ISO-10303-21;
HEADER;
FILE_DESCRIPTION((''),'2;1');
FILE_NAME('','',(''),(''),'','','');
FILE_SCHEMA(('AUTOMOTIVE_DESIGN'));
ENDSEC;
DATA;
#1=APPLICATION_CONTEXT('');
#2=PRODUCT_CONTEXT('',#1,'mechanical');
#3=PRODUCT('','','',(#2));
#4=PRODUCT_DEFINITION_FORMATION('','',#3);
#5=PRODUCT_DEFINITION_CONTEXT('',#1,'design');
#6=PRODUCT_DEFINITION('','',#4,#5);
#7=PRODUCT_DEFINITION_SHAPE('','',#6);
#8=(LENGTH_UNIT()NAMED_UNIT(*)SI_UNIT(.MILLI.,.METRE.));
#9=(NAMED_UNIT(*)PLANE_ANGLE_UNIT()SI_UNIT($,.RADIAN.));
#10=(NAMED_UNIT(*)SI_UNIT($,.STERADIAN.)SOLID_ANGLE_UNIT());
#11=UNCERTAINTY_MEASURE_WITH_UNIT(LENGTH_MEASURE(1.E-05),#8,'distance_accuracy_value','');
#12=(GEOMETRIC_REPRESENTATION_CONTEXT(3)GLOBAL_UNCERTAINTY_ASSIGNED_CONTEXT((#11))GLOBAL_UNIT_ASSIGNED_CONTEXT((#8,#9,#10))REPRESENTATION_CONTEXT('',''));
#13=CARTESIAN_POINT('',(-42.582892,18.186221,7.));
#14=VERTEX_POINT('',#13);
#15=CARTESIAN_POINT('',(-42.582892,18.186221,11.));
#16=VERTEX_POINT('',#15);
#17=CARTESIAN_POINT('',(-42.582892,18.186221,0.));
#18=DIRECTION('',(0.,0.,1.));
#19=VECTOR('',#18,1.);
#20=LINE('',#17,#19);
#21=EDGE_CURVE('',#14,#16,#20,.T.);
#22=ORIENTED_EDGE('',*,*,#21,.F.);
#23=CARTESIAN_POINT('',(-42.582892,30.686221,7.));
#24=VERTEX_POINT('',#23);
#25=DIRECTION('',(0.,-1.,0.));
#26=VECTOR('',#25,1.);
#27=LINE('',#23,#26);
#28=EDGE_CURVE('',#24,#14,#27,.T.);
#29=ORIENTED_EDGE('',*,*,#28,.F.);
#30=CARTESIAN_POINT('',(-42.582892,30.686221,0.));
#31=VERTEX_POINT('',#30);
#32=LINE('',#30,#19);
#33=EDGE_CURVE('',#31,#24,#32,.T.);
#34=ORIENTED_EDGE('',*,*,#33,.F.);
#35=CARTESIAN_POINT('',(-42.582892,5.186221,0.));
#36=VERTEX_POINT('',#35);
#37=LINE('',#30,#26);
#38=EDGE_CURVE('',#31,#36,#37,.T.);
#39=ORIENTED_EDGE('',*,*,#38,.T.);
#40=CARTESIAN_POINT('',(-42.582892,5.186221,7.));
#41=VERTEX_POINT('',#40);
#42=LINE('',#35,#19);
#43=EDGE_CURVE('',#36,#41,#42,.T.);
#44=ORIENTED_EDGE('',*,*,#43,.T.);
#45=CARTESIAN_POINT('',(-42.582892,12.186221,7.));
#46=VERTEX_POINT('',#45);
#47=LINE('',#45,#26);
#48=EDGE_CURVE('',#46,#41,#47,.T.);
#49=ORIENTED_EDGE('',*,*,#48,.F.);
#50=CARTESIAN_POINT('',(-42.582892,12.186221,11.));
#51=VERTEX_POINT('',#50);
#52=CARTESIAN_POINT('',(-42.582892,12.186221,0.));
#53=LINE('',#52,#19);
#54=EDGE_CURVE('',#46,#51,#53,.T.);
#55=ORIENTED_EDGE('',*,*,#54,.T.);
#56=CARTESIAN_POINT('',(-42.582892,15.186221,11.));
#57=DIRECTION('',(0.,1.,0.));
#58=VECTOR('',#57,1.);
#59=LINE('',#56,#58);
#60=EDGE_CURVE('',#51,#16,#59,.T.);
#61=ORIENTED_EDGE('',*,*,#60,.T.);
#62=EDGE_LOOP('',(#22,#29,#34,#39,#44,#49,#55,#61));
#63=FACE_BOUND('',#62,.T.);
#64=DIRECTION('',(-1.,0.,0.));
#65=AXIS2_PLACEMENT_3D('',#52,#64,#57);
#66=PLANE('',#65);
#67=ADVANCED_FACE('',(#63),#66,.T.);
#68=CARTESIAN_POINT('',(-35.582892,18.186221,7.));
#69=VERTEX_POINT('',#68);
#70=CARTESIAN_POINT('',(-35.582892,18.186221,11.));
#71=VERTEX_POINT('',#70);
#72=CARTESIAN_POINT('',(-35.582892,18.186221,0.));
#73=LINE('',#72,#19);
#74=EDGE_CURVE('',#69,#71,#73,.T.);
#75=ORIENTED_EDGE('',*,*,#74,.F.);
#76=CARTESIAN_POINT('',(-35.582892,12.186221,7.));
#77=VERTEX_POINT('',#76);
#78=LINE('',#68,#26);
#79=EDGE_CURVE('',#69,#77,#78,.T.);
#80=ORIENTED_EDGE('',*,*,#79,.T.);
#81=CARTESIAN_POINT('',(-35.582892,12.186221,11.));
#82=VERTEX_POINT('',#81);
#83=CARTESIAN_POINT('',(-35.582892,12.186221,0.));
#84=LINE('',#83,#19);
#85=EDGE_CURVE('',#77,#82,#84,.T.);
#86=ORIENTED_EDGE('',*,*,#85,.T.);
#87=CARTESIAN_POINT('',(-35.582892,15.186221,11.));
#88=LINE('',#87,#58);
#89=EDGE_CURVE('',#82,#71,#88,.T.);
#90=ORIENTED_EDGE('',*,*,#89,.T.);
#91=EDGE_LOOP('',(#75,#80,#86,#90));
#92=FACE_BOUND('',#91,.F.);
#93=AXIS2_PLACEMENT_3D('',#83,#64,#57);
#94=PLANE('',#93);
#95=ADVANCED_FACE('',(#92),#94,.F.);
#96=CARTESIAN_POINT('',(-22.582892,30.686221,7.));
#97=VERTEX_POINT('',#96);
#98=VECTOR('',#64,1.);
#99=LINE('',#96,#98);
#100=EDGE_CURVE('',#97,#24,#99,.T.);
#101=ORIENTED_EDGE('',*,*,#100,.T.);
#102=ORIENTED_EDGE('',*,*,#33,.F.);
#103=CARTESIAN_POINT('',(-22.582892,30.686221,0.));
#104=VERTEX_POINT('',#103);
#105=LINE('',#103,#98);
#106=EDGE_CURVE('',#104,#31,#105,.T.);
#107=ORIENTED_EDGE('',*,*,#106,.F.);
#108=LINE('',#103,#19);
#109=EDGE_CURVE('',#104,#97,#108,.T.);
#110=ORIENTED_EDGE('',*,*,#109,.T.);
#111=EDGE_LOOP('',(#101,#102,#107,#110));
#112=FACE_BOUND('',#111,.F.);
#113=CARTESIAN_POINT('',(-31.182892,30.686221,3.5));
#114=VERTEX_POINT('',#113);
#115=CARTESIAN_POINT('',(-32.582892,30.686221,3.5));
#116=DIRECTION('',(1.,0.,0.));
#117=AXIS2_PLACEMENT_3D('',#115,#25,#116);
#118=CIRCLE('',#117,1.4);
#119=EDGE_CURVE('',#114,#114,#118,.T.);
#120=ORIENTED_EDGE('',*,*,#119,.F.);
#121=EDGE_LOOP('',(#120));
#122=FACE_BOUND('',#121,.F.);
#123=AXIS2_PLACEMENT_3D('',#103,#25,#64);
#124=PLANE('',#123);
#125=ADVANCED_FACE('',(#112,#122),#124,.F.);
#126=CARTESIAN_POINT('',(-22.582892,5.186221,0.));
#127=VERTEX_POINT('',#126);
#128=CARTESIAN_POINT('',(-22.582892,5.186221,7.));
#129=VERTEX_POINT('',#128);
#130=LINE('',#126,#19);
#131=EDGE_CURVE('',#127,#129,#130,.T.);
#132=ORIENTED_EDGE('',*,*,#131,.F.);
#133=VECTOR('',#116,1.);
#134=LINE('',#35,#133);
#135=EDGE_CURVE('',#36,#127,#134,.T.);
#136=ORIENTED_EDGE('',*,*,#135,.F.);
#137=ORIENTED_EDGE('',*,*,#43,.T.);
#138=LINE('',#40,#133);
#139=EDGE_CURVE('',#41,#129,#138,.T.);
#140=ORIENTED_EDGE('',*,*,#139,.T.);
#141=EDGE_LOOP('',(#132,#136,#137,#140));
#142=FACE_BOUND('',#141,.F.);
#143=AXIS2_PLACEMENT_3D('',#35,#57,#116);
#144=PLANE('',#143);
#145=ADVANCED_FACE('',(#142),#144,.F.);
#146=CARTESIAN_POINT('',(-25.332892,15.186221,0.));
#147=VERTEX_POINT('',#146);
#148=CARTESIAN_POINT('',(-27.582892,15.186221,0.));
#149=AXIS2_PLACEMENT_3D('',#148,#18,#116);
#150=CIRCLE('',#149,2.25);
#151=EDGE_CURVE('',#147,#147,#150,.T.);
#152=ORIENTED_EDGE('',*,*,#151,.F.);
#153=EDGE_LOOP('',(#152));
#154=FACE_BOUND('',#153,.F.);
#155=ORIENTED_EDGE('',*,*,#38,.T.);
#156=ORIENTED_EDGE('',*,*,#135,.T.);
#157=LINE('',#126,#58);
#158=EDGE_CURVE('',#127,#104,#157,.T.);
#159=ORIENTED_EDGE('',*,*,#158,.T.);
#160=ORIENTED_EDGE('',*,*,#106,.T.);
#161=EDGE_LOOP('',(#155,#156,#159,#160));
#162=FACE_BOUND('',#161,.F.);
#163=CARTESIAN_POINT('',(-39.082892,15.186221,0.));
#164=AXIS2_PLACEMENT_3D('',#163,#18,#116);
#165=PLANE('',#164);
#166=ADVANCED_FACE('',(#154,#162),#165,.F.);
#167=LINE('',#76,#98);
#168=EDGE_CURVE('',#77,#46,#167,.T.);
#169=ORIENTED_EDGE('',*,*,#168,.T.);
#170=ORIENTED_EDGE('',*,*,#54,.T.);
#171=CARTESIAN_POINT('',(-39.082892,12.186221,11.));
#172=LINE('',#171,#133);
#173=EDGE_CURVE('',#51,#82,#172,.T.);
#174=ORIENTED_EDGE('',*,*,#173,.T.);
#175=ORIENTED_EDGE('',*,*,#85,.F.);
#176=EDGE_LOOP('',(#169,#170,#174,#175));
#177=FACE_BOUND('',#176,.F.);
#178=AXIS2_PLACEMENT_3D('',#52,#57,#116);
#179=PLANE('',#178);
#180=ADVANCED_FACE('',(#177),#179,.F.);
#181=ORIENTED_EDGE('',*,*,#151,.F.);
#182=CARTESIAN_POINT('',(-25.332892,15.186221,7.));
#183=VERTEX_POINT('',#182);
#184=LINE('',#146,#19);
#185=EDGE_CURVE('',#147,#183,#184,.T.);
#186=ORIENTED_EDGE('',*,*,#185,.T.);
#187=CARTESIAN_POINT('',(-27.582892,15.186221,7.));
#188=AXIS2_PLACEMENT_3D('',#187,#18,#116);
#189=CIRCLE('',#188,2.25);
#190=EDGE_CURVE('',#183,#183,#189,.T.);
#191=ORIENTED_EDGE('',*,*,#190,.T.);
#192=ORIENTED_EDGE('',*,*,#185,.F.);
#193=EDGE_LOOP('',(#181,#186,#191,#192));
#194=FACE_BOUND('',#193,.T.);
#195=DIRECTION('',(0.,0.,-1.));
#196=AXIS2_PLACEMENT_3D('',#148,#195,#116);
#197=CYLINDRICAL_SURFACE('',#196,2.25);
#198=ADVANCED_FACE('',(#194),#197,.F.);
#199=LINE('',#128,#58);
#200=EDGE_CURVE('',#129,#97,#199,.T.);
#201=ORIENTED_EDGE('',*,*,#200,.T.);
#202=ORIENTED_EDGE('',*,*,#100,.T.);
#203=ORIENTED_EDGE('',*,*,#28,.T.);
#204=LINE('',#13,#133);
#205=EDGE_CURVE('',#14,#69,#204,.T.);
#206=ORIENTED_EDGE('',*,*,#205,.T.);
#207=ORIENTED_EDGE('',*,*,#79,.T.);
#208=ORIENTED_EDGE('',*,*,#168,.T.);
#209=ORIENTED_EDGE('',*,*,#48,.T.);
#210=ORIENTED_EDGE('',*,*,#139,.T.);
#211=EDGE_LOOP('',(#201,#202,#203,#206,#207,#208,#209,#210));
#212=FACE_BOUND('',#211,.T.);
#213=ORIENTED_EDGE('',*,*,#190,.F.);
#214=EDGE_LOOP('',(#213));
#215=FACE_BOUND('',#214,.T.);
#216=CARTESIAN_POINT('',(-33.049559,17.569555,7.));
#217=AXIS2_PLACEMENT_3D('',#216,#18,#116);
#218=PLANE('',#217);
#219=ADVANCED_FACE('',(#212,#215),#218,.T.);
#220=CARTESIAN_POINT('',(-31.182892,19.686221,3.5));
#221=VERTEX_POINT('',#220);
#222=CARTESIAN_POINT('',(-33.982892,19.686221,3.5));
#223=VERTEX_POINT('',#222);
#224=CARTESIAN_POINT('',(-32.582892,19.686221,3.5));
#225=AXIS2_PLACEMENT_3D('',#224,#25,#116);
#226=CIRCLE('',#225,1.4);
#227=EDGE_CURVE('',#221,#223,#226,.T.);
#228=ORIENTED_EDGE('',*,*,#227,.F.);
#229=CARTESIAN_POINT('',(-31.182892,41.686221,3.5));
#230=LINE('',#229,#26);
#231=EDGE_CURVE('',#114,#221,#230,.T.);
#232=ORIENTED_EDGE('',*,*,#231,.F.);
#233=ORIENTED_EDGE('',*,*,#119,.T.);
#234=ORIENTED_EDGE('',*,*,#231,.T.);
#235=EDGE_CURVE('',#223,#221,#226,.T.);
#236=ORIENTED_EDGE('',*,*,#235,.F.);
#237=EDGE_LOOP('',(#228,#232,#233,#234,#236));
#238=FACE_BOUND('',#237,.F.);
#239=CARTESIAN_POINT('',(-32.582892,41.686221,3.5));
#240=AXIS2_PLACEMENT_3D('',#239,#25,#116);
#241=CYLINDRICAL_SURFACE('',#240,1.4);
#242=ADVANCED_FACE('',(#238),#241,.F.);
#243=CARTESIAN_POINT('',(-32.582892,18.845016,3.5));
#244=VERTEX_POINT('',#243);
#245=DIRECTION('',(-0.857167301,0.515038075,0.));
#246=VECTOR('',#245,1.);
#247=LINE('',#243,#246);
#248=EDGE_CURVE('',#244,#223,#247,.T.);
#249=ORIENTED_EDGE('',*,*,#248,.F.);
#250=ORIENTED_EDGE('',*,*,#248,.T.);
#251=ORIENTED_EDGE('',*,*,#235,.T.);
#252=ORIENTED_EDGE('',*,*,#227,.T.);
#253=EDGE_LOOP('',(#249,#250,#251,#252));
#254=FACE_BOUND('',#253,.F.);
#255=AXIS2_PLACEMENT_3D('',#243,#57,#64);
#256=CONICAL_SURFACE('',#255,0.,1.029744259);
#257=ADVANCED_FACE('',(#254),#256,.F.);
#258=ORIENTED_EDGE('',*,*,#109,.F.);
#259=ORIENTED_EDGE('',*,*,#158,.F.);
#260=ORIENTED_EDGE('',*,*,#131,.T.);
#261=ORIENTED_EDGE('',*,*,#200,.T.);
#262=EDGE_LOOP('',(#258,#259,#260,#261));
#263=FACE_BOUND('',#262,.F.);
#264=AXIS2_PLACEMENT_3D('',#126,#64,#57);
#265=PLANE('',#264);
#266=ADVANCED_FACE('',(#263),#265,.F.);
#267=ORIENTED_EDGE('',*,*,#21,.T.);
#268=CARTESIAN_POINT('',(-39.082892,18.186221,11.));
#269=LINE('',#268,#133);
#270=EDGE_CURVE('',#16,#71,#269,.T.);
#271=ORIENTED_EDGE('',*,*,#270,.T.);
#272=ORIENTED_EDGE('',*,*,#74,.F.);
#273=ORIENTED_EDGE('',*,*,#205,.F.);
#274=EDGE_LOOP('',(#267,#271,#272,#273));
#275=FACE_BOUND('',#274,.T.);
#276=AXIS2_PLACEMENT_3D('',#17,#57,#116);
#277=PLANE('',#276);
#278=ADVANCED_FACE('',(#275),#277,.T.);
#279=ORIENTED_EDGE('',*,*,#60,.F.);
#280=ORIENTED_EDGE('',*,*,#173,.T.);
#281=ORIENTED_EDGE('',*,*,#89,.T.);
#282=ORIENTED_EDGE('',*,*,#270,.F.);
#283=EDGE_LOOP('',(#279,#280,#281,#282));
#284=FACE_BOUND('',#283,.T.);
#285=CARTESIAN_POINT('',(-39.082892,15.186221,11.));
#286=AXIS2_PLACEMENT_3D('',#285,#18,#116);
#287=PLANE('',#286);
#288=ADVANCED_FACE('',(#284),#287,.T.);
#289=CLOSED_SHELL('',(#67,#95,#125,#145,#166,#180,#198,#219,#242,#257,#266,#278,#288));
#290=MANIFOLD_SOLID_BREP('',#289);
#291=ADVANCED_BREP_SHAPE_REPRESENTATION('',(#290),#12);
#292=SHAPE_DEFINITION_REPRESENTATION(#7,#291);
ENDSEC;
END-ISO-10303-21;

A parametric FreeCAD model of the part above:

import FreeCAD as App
import Part
import Sketcher
from FreeCAD import Vector

doc = App.newDocument("Part")
body = doc.addObject("PartDesign::Body", "Body")

# Sketch on XY plane
sketch1 = doc.addObject("Sketcher::SketchObject", "Sketch")
body.addObject(sketch1)
sketch1.AttachmentSupport = (doc.XY_Plane, [""])
sketch1.MapMode = "FlatFace"
sketch1.addGeometry(Part.LineSegment(Vector(-22.6, 30.7, 0), Vector(-42.6, 30.7, 0)), False)
sketch1.addGeometry(Part.LineSegment(Vector(-42.6, 30.7, 0), Vector(-42.6, 18.2, 0)), False)
sketch1.addGeometry(Part.LineSegment(Vector(-42.6, 18.2, 0), Vector(-35.6, 18.2, 0)), False)
sketch1.addGeometry(Part.LineSegment(Vector(-35.6, 18.2, 0), Vector(-35.6, 12.2, 0)), False)
sketch1.addGeometry(Part.LineSegment(Vector(-35.6, 12.2, 0), Vector(-42.6, 12.2, 0)), False)
sketch1.addGeometry(Part.LineSegment(Vector(-42.6, 12.2, 0), Vector(-42.6, 5.2, 0)), False)
sketch1.addGeometry(Part.LineSegment(Vector(-42.6, 5.2, 0), Vector(-22.6, 5.2, 0)), False)
sketch1.addGeometry(Part.LineSegment(Vector(-22.6, 5.2, 0), Vector(-22.6, 30.7, 0)), False)
sketch1.addGeometry(Part.Circle(Vector(-27.6, 15.2, 0), Vector(0, 0, 1), 2.2), False)
sketch1.addConstraint(Sketcher.Constraint("Coincident", 0, 2, 1, 1))
sketch1.addConstraint(Sketcher.Constraint("Coincident", 1, 2, 2, 1))
sketch1.addConstraint(Sketcher.Constraint("Coincident", 2, 2, 3, 1))
sketch1.addConstraint(Sketcher.Constraint("Coincident", 3, 2, 4, 1))
sketch1.addConstraint(Sketcher.Constraint("Coincident", 4, 2, 5, 1))
sketch1.addConstraint(Sketcher.Constraint("Coincident", 5, 2, 6, 1))
sketch1.addConstraint(Sketcher.Constraint("Coincident", 6, 2, 7, 1))
sketch1.addConstraint(Sketcher.Constraint("Coincident", 7, 2, 0, 1))
sketch1.addConstraint(Sketcher.Constraint("Horizontal", 0))
sketch1.addConstraint(Sketcher.Constraint("Vertical", 1))
sketch1.addConstraint(Sketcher.Constraint("Horizontal", 2))
sketch1.addConstraint(Sketcher.Constraint("Vertical", 3))
sketch1.addConstraint(Sketcher.Constraint("Horizontal", 4))
sketch1.addConstraint(Sketcher.Constraint("Vertical", 5))
sketch1.addConstraint(Sketcher.Constraint("Horizontal", 6))
sketch1.addConstraint(Sketcher.Constraint("Vertical", 7))
sketch1.addConstraint(Sketcher.Constraint("Vertical", 1, 2, 4, 2))
sketch1.addConstraint(Sketcher.Constraint("Equal", 4, 5))
sketch1.addConstraint(Sketcher.Constraint("Diameter", 8, 4.5))
sketch1.addConstraint(Sketcher.Constraint("DistanceX", 0, 2, 0, 1, 20.0))
sketch1.addConstraint(Sketcher.Constraint("DistanceX", 2, 1, 2, 2, 7.0))
sketch1.addConstraint(Sketcher.Constraint("DistanceY", 3, 2, 3, 1, 6.0))
sketch1.addConstraint(Sketcher.Constraint("DistanceY", 1, 2, 1, 1, 12.5))
sketch1.addConstraint(Sketcher.Constraint("DistanceX", 0, 2, 8, 3, 15.0))
sketch1.addConstraint(Sketcher.Constraint("DistanceY", 8, 3, 1, 2, 3.0))
sketch1.addConstraint(Sketcher.Constraint("DistanceX", 8, 3, -1, 1, 27.582892))
sketch1.addConstraint(Sketcher.Constraint("DistanceY", -1, 1, 8, 3, 15.186221))
pad1 = doc.addObject("PartDesign::Pad", "Pad")
body.addObject(pad1)
pad1.Profile = sketch1
pad1.Length = 7

# Sketch on XY plane
sketch2 = doc.addObject("Sketcher::SketchObject", "Sketch001")
body.addObject(sketch2)
sketch2.AttachmentSupport = (doc.XY_Plane, [""])
sketch2.MapMode = "FlatFace"
sketch2.addGeometry(Part.LineSegment(Vector(-43, 18, 0), Vector(-43, 12, 0)), False)
sketch2.addGeometry(Part.LineSegment(Vector(-43, 12, 0), Vector(-36, 12, 0)), False)
sketch2.addGeometry(Part.LineSegment(Vector(-36, 12, 0), Vector(-36, 18, 0)), False)
sketch2.addGeometry(Part.LineSegment(Vector(-36, 18, 0), Vector(-43, 18, 0)), False)
sketch2.addConstraint(Sketcher.Constraint("Coincident", 0, 2, 1, 1))
sketch2.addConstraint(Sketcher.Constraint("Coincident", 1, 2, 2, 1))
sketch2.addConstraint(Sketcher.Constraint("Coincident", 2, 2, 3, 1))
sketch2.addConstraint(Sketcher.Constraint("Coincident", 3, 2, 0, 1))
sketch2.addConstraint(Sketcher.Constraint("Vertical", 0))
sketch2.addConstraint(Sketcher.Constraint("Horizontal", 1))
sketch2.addConstraint(Sketcher.Constraint("Vertical", 2))
sketch2.addConstraint(Sketcher.Constraint("Horizontal", 3))
sketch2.addConstraint(Sketcher.Constraint("DistanceX", 1, 1, 1, 2, 7.0))
sketch2.addConstraint(Sketcher.Constraint("DistanceY", 0, 2, 0, 1, 6.0))
sketch2.addConstraint(Sketcher.Constraint("DistanceX", 0, 2, -1, 1, 42.582892))
sketch2.addConstraint(Sketcher.Constraint("DistanceY", -1, 1, 0, 2, 12.186221))
pad2 = doc.addObject("PartDesign::Pad", "Pad001")
body.addObject(pad2)
pad2.Profile = sketch2
pad2.Length = 11

# Sketch on XZ plane
sketch3 = doc.addObject("Sketcher::SketchObject", "Sketch002")
body.addObject(sketch3)
sketch3.AttachmentSupport = (doc.XZ_Plane, [""])
sketch3.MapMode = "FlatFace"
sketch3.AttachmentOffset = App.Placement(Vector(0, 0, -30.686221), App.Rotation())
sketch3.addGeometry(Part.Circle(Vector(-32.6, 3.5, 0), Vector(0, 0, 1), 1.4), False)
sketch3.addConstraint(Sketcher.Constraint("Diameter", 0, 2.8))
sketch3.addConstraint(Sketcher.Constraint("DistanceY", -1, 1, 0, 3, 3.5))
sketch3.addConstraint(Sketcher.Constraint("DistanceX", 0, 3, -1, 1, 32.582892))
doc.recompute()
hole = doc.addObject("PartDesign::Hole", "Hole")
body.addObject(hole)
hole.Profile = sketch3
hole.ThreadType = "None"
hole.Diameter = 2.8
hole.DepthType = "Dimension"
hole.Depth = 11
hole.DrillPoint = "Angled"
hole.DrillPointAngle = 118
hole.Reversed = True

doc.recompute()
